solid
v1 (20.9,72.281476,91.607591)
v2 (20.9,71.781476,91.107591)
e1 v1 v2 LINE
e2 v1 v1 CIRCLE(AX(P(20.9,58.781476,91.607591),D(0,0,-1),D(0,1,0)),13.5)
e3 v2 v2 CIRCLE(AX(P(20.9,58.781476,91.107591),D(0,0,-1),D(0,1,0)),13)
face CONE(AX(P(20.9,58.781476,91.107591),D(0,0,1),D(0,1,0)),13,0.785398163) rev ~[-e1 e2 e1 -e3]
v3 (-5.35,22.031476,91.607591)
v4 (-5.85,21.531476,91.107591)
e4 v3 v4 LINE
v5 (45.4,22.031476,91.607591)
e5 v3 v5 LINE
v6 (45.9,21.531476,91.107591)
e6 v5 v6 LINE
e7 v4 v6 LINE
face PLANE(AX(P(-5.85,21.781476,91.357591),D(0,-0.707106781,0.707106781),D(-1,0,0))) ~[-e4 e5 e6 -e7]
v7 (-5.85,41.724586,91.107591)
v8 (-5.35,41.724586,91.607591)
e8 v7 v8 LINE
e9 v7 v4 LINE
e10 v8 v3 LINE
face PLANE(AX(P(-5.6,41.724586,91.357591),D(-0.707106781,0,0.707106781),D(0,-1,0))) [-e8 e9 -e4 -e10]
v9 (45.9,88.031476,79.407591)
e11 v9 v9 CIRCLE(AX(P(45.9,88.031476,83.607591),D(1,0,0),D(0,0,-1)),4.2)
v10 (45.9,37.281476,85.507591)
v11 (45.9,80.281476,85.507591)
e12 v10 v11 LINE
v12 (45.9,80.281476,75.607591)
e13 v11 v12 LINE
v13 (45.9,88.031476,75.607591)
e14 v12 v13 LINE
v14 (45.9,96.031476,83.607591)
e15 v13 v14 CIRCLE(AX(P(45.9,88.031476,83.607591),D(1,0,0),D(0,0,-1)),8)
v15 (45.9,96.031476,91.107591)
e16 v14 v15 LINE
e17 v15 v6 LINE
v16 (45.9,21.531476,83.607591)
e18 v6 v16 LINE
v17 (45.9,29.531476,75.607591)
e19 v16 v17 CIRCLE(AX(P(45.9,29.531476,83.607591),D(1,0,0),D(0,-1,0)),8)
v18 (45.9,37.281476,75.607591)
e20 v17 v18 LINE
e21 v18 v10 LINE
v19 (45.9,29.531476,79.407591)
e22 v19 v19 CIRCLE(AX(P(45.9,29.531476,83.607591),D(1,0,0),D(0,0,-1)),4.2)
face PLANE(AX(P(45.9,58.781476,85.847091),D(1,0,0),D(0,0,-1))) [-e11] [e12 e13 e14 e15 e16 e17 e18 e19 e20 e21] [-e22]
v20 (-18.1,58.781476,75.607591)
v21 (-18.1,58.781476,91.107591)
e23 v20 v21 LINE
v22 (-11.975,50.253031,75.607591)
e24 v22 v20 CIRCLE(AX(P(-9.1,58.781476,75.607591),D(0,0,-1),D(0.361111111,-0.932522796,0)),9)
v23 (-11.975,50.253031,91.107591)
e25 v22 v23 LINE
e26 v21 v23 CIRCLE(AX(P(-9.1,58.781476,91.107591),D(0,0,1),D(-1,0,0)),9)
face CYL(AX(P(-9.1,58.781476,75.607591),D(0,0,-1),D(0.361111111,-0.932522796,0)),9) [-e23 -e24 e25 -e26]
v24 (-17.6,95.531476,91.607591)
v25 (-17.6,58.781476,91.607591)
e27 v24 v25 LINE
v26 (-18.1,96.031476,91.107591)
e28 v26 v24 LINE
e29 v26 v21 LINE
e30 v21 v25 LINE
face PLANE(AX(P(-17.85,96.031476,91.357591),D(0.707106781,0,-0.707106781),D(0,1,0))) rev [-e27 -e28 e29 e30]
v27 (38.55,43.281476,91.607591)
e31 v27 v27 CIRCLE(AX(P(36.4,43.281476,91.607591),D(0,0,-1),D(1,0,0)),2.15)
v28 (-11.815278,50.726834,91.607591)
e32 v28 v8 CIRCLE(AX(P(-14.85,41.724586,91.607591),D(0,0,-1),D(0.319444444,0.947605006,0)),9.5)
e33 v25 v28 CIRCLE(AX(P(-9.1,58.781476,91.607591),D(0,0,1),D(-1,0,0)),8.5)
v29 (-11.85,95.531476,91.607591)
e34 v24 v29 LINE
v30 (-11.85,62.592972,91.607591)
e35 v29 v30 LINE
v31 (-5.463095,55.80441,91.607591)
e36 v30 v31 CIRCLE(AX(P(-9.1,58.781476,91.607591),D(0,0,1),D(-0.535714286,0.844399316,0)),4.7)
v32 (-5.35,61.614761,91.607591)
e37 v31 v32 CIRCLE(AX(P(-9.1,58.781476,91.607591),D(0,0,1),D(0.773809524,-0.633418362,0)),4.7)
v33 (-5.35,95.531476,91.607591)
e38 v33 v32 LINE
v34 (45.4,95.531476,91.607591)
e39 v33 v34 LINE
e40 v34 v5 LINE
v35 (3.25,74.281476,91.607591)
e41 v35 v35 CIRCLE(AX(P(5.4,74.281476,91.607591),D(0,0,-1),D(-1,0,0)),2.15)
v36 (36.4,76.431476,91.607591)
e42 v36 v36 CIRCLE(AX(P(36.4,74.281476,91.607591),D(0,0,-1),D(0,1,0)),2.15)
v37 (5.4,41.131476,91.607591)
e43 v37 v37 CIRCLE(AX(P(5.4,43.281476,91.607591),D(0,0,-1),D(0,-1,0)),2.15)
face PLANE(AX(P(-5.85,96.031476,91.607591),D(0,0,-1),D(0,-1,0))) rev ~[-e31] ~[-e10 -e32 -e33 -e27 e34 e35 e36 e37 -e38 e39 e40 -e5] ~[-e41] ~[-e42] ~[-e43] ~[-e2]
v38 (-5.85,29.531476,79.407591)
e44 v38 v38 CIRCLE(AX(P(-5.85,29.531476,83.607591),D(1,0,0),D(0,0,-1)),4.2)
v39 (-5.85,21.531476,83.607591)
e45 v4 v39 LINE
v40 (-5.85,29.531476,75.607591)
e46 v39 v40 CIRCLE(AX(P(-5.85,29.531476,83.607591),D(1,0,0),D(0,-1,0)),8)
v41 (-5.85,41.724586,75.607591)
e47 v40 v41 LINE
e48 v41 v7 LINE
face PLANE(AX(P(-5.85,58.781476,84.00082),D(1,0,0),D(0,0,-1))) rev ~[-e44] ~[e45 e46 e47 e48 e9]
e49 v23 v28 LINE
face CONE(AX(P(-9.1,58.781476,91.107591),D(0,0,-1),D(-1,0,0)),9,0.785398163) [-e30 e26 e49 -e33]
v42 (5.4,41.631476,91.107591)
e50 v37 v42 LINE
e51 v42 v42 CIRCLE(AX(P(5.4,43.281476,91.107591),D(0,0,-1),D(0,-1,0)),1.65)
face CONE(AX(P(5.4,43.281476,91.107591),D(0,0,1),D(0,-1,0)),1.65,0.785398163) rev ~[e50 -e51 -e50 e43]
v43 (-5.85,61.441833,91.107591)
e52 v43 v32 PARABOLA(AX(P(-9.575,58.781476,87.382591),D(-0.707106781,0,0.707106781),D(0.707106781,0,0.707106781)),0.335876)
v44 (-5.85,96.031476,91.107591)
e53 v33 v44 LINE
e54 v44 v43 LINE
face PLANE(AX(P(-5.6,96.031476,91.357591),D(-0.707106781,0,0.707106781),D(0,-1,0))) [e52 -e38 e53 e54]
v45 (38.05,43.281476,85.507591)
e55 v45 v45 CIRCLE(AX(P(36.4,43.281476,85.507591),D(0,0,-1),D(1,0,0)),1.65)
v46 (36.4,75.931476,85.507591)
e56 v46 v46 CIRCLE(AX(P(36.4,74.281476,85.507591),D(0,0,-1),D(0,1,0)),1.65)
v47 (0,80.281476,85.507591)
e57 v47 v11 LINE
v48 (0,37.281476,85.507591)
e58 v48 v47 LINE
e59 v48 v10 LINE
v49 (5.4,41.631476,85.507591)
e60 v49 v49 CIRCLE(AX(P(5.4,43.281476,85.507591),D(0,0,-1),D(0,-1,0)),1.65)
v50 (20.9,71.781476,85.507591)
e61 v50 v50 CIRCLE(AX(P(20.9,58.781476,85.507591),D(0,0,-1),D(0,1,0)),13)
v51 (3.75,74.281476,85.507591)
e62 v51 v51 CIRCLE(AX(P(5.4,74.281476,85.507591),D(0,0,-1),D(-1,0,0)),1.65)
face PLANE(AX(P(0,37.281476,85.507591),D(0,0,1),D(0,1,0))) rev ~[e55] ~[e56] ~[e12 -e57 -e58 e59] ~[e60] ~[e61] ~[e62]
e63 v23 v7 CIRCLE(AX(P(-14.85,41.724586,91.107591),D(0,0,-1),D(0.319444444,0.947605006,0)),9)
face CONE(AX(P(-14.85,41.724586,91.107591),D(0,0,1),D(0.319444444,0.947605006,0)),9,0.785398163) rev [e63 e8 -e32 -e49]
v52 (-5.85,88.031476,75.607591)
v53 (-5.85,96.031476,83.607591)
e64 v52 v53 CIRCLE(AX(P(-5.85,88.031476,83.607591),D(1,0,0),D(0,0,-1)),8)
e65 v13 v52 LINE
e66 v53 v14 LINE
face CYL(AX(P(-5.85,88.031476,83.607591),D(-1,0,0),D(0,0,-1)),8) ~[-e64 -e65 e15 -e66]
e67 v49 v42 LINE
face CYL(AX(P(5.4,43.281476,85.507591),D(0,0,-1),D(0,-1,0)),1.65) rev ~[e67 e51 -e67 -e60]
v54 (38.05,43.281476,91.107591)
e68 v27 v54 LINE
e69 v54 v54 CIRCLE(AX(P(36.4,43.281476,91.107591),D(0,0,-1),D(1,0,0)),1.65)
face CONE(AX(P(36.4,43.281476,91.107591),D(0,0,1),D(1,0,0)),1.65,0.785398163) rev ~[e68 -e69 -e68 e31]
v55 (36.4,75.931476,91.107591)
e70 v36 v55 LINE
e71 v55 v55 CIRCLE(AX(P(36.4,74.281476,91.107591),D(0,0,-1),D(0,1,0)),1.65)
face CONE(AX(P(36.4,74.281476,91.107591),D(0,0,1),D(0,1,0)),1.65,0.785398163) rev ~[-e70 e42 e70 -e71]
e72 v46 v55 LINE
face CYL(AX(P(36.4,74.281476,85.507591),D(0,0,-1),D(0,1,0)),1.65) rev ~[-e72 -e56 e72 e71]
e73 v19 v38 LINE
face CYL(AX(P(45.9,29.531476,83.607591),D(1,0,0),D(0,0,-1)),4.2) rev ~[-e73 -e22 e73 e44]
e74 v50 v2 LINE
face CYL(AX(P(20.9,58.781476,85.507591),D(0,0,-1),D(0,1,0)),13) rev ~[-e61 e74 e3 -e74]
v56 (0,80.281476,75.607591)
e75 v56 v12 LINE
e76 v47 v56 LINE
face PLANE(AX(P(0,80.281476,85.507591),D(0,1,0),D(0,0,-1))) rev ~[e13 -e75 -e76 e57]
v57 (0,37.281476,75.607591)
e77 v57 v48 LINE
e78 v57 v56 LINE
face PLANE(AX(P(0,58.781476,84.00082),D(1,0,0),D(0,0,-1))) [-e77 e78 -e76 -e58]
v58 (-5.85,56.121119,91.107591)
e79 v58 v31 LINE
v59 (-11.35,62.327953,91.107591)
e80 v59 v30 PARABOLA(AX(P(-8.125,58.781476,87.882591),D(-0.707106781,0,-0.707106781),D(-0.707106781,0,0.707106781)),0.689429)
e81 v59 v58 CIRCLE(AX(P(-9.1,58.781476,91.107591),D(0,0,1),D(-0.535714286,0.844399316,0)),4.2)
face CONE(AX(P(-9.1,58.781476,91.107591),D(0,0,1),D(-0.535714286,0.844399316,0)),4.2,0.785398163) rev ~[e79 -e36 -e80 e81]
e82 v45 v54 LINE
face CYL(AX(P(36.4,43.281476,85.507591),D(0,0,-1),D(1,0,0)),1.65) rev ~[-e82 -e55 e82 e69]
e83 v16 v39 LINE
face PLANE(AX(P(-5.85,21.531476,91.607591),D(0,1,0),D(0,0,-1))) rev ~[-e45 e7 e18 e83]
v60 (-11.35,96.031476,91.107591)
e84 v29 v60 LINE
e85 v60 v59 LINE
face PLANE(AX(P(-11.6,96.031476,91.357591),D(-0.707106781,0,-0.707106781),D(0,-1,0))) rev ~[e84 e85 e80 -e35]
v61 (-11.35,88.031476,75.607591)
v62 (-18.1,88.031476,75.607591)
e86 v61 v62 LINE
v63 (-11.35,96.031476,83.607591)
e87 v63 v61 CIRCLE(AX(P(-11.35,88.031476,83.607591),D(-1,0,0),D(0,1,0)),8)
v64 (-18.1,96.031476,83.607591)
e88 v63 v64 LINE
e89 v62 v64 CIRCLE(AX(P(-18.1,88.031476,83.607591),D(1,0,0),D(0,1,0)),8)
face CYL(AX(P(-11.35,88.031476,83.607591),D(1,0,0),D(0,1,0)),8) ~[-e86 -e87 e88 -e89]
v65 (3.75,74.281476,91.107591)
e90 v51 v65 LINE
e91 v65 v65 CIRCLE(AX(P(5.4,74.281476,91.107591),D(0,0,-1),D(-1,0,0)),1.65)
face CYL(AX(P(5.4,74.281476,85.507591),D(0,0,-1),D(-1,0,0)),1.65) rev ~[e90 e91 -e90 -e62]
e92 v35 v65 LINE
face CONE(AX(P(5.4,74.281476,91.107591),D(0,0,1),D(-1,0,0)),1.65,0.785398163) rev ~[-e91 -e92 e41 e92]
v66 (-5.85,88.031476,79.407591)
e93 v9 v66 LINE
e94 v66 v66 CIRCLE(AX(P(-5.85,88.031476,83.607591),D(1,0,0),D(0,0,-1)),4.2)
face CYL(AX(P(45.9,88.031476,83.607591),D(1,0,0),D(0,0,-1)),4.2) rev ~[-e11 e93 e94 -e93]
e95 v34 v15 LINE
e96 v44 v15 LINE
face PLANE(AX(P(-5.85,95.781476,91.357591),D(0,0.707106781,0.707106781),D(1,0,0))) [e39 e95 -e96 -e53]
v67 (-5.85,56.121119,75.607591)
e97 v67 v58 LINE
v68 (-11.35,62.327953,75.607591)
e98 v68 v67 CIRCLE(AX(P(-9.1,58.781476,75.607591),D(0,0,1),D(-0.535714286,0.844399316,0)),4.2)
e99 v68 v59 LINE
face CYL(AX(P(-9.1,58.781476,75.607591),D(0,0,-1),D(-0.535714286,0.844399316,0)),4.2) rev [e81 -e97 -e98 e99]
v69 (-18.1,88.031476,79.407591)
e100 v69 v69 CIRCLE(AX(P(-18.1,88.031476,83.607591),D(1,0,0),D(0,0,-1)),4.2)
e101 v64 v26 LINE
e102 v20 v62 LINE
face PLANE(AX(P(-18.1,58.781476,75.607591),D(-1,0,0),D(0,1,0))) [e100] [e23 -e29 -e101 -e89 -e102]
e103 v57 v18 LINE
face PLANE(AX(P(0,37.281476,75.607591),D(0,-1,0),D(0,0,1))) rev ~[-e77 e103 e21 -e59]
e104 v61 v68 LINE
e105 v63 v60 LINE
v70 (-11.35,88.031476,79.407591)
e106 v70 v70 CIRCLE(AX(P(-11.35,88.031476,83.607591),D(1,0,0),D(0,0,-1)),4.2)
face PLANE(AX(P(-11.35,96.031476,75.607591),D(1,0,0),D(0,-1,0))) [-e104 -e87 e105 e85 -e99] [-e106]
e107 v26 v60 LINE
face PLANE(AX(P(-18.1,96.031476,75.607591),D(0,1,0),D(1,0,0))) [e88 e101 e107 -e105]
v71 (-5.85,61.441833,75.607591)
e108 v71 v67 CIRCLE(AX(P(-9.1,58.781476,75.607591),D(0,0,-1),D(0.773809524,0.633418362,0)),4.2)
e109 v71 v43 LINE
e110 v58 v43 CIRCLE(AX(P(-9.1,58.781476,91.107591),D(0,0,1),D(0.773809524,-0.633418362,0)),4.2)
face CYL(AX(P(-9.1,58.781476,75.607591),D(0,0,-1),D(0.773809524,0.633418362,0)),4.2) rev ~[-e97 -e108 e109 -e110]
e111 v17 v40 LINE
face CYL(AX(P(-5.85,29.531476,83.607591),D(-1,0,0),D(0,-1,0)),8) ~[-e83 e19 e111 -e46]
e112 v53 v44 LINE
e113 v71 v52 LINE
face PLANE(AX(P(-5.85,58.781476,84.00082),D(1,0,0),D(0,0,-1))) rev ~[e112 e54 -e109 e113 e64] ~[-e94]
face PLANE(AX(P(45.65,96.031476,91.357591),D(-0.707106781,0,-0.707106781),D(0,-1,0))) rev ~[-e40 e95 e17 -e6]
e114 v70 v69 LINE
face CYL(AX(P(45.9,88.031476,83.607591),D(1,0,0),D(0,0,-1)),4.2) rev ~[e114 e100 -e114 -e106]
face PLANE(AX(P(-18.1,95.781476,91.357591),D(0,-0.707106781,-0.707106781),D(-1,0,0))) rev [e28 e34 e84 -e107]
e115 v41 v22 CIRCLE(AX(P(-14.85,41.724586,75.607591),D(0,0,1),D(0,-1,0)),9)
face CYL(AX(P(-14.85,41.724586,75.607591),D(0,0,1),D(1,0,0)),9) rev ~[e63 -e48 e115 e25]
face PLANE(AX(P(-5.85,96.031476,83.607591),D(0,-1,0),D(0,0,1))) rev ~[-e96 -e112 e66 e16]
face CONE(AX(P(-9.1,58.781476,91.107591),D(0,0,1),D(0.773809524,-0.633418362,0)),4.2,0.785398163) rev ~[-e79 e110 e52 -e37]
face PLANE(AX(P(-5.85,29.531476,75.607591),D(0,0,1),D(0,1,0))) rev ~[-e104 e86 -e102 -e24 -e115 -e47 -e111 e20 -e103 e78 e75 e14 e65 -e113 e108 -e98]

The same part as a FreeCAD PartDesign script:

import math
import FreeCAD as App
import Part
import Sketcher

V = App.Vector
Q = App.Units.Quantity


def edges_at(feature, points):
    """Names of the edges that pass closest to the given points."""
    edges = feature.Shape.Edges
    near = lambda p: min(range(len(edges)), key=lambda i: edges[i].distToShape(Part.Vertex(*p))[0])
    return sorted({f"Edge{near(p) + 1}" for p in points})

doc = App.newDocument("Part")
body = doc.addObject("PartDesign::Body", "Body")

sketch1 = body.newObject("Sketcher::SketchObject", "Sketch")
sketch1.AttachmentSupport = (doc.getObject("YZ_Plane"), [""])
sketch1.MapMode = "FlatFace"
sketch1.addGeometry([
    Part.LineSegment(V(30, 76, 0), V(37, 76, 0)),
    Part.LineSegment(V(37, 76, 0), V(37, 86, 0)),
    Part.LineSegment(V(37, 86, 0), V(80, 86, 0)),
    Part.LineSegment(V(80, 86, 0), V(80, 76, 0)),
    Part.LineSegment(V(80, 76, 0), V(88, 76, 0)),
    Part.ArcOfCircle(Part.Circle(V(88, 84, 0), V(0, 0, 1), 8), math.radians(-90), math.radians(0)),
    Part.LineSegment(V(96, 84, 0), V(96, 92, 0)),
    Part.LineSegment(V(96, 92, 0), V(22, 92, 0)),
    Part.LineSegment(V(22, 92, 0), V(22, 84, 0)),
    Part.ArcOfCircle(Part.Circle(V(30, 84, 0), V(0, 0, 1), 8), math.radians(180), math.radians(270)),
], False)
sketch1.addConstraint([
    Sketcher.Constraint("Coincident", 0, 2, 1, 1),
    Sketcher.Constraint("Coincident", 1, 2, 2, 1),
    Sketcher.Constraint("Coincident", 2, 2, 3, 1),
    Sketcher.Constraint("Coincident", 3, 2, 4, 1),
    Sketcher.Constraint("Tangent", 4, 2, 5, 1),
    Sketcher.Constraint("Tangent", 5, 2, 6, 1),
    Sketcher.Constraint("Coincident", 6, 2, 7, 1),
    Sketcher.Constraint("Coincident", 7, 2, 8, 1),
    Sketcher.Constraint("Tangent", 8, 2, 9, 1),
    Sketcher.Constraint("Tangent", 9, 2, 0, 1),
    Sketcher.Constraint("Horizontal", 0),
    Sketcher.Constraint("Vertical", 1),
    Sketcher.Constraint("Horizontal", 2),
    Sketcher.Constraint("Vertical", 3),
    Sketcher.Constraint("Horizontal", 4),
    Sketcher.Constraint("Vertical", 6),
    Sketcher.Constraint("Horizontal", 7),
    Sketcher.Constraint("Vertical", 8),
    Sketcher.Constraint("Equal", 5, 9),
    Sketcher.Constraint("Horizontal", 5, 3, 9, 3),
    Sketcher.Constraint("Equal", 0, 4),
    Sketcher.Constraint("Radius", 5, Q("8 mm")),
    Sketcher.Constraint("DistanceX", 2, 1, 2, 2, Q("43 mm")),
    Sketcher.Constraint("DistanceY", 6, 1, 6, 2, Q("8 mm")),
    Sketcher.Constraint("DistanceX", 7, 2, 7, 1, Q("74.5 mm")),
    Sketcher.Constraint("DistanceY", 1, 1, 1, 2, Q("9.9 mm")),
    Sketcher.Constraint("DistanceY", -1, 1, 5, 3, Q("83.607591 mm")),
    Sketcher.Constraint("DistanceX", -1, 1, 5, 3, Q("88.031476 mm")),
])
pad1 = body.newObject("PartDesign::Pad", "Pad")
pad1.Profile = sketch1
pad1.Length = 45.9

sketch2 = body.newObject("Sketcher::SketchObject", "Sketch001")
sketch2.AttachmentSupport = (doc.getObject("YZ_Plane"), [""])
sketch2.MapMode = "FlatFace"
sketch2.AttachmentOffset = App.Placement(V(0, 0, -5.85), App.Rotation())
sketch2.addGeometry([
    Part.ArcOfCircle(Part.Circle(V(88, 84, 0), V(0, 0, 1), 8), math.radians(-90), math.radians(0)),
    Part.LineSegment(V(88, 76, 0), V(30, 76, 0)),
    Part.ArcOfCircle(Part.Circle(V(30, 84, 0), V(0, 0, 1), 8), math.radians(180), math.radians(270)),
    Part.LineSegment(V(22, 84, 0), V(22, 92, 0)),
    Part.LineSegment(V(22, 92, 0), V(96, 92, 0)),
    Part.LineSegment(V(96, 92, 0), V(96, 84, 0)),
], False)
sketch2.addConstraint([
    Sketcher.Constraint("Tangent", 0, 1, 1, 1),
    Sketcher.Constraint("Tangent", 1, 2, 2, 2),
    Sketcher.Constraint("Tangent", 2, 1, 3, 1),
    Sketcher.Constraint("Coincident", 3, 2, 4, 1),
    Sketcher.Constraint("Coincident", 4, 2, 5, 1),
    Sketcher.Constraint("Tangent", 5, 2, 0, 2),
    Sketcher.Constraint("Horizontal", 1),
    Sketcher.Constraint("Vertical", 3),
    Sketcher.Constraint("Horizontal", 4),
    Sketcher.Constraint("Vertical", 5),
    Sketcher.Constraint("Equal", 0, 2),
    Sketcher.Constraint("Radius", 0, Q("8 mm")),
    Sketcher.Constraint("DistanceY", 3, 1, 3, 2, Q("8 mm")),
    Sketcher.Constraint("DistanceX", 1, 2, 1, 1, Q("58.5 mm")),
    Sketcher.Constraint("DistanceY", -1, 1, 0, 3, Q("83.607591 mm")),
    Sketcher.Constraint("DistanceX", -1, 1, 0, 3, Q("88.031476 mm")),
])
pad2 = body.newObject("PartDesign::Pad", "Pad001")
pad2.Profile = sketch2
pad2.Length = 5.85

sketch3 = body.newObject("Sketcher::SketchObject", "Sketch002")
sketch3.AttachmentSupport = (doc.getObject("XY_Plane"), [""])
sketch3.MapMode = "FlatFace"
sketch3.AttachmentOffset = App.Placement(V(0, 0, 85.507591), App.Rotation())
sketch3.addGeometry(Part.Circle(V(21, 59, 0), V(0, 0, 1), 13), False)
sketch3.addConstraint([
    Sketcher.Constraint("Diameter", 0, Q("26 mm")),
    Sketcher.Constraint("DistanceX", -1, 1, 0, 3, Q("20.9 mm")),
    Sketcher.Constraint("DistanceY", -1, 1, 0, 3, Q("58.781476 mm")),
])
pocket1 = body.newObject("PartDesign::Pocket", "Pocket")
pocket1.Profile = sketch3
pocket1.Type = "ThroughAll"
pocket1.Reversed = True

sketch4 = body.newObject("Sketcher::SketchObject", "Sketch003")
sketch4.AttachmentSupport = (doc.getObject("XY_Plane"), [""])
sketch4.MapMode = "FlatFace"
sketch4.AttachmentOffset = App.Placement(V(0, 0, 75.607591), App.Rotation())
sketch4.addGeometry([
    Part.ArcOfCircle(Part.Circle(V(-9.1, 58.8, 0), V(0, 0, 1), 9), math.radians(180), math.radians(291)),
    Part.LineSegment(V(-18.1, 58.8, 0), V(-18.1, 96, 0)),
    Part.LineSegment(V(-18.1, 96, 0), V(-11.3, 96, 0)),
    Part.LineSegment(V(-11.3, 96, 0), V(-11.3, 62.3, 0)),
    Part.ArcOfCircle(Part.Circle(V(-9.1, 58.8, 0), V(0, 0, 1), 4.2), math.radians(122), math.radians(321)),
    Part.LineSegment(V(-5.8, 56.1, 0), V(-5.8, 50.4, 0)),
], False)
sketch4.addConstraint([
    Sketcher.Constraint("Tangent", 0, 1, 1, 1),
    Sketcher.Constraint("Coincident", 1, 2, 2, 1),
    Sketcher.Constraint("Coincident", 2, 2, 3, 1),
    Sketcher.Constraint("Coincident", 3, 2, 4, 1),
    Sketcher.Constraint("Coincident", 4, 2, 5, 1),
    Sketcher.Constraint("Coincident", 5, 2, 0, 2),
    Sketcher.Constraint("Vertical", 1),
    Sketcher.Constraint("Horizontal", 2),
    Sketcher.Constraint("Vertical", 3),
    Sketcher.Constraint("Vertical", 5),
    Sketcher.Constraint("Coincident", 4, 3, 0, 3),
    Sketcher.Constraint("Radius", 0, Q("9 mm")),
    Sketcher.Constraint("Radius", 4, Q("4.2 mm")),
    Sketcher.Constraint("DistanceX", 2, 1, 2, 2, Q("6.75 mm")),
    Sketcher.Constraint("DistanceY", 1, 1, 1, 2, Q("37.25 mm")),
    Sketcher.Constraint("DistanceX", 0, 3, -1, 1, Q("9.1 mm")),
    Sketcher.Constraint("DistanceX", 3, 2, 4, 2, Q("5.5 mm")),
    Sketcher.Constraint("DistanceY", -1, 1, 4, 2, Q("56.121119 mm")),
])
pad3 = body.newObject("PartDesign::Pad", "Pad002")
pad3.Profile = sketch4
pad3.Length = 16

sketch5 = body.newObject("Sketcher::SketchObject", "Sketch004")
sketch5.AttachmentSupport = (doc.getObject("XY_Plane"), [""])
sketch5.MapMode = "FlatFace"
sketch5.AttachmentOffset = App.Placement(V(0, 0, 75.607591), App.Rotation())
sketch5.addGeometry([
    Part.ArcOfCircle(Part.Circle(V(-9.1, 58.8, 0), V(0, 0, 1), 4.2), math.radians(-39), math.radians(39)),
    Part.LineSegment(V(-5.8, 56.1, 0), V(-5.8, 61.4, 0)),
], False)
sketch5.addConstraint([
    Sketcher.Constraint("Coincident", 0, 1, 1, 1),
    Sketcher.Constraint("Coincident", 1, 2, 0, 2),
    Sketcher.Constraint("Vertical", 1),
    Sketcher.Constraint("Radius", 0, Q("4.2 mm")),
    Sketcher.Constraint("DistanceX", 0, 3, -1, 1, Q("9.1 mm")),
    Sketcher.Constraint("DistanceX", 0, 1, -1, 1, Q("5.85 mm")),
    Sketcher.Constraint("DistanceY", -1, 1, 0, 1, Q("56.121119 mm")),
])
pocket2 = body.newObject("PartDesign::Pocket", "Pocket001")
pocket2.Profile = sketch5
pocket2.Type = "ThroughAll"
pocket2.Reversed = True
doc.recompute()

fillet = body.newObject("PartDesign::Fillet", "Fillet")
fillet.Base = (pocket2, edges_at(pocket2, [(-5.85, 50.389, 83.608)]))
fillet.Radius = 9

sketch6 = body.newObject("Sketcher::SketchObject", "Sketch005")
sketch6.AttachmentSupport = (doc.getObject("YZ_Plane"), [""])
sketch6.MapMode = "FlatFace"
sketch6.AttachmentOffset = App.Placement(V(0, 0, 45.9), App.Rotation())
sketch6.addGeometry([
    Part.Circle(V(88, 83.6, 0), V(0, 0, 1), 4.2),
    Part.Circle(V(29.5, 83.6, 0), V(0, 0, 1), 4.2),
], False)
sketch6.addConstraint([
    Sketcher.Constraint("Equal", 0, 1),
    Sketcher.Constraint("Horizontal", 0, 3, 1, 3),
    Sketcher.Constraint("Diameter", 0, Q("8.4 mm")),
    Sketcher.Constraint("DistanceX", 1, 3, 0, 3, Q("58.5 mm")),
    Sketcher.Constraint("DistanceY", -1, 1, 0, 3, Q("83.607591 mm")),
    Sketcher.Constraint("DistanceX", -1, 1, 0, 3, Q("88.031476 mm")),
])
pocket3 = body.newObject("PartDesign::Pocket", "Pocket002")
pocket3.Profile = sketch6
pocket3.Type = "ThroughAll"

sketch7 = body.newObject("Sketcher::SketchObject", "Sketch006")
sketch7.AttachmentSupport = (doc.getObject("XY_Plane"), [""])
sketch7.MapMode = "FlatFace"
sketch7.AttachmentOffset = App.Placement(V(0, 0, 85.507591), App.Rotation())
sketch7.addGeometry(Part.Circle(V(36.4, 74.3, 0), V(0, 0, 1), 1.6), False)
sketch7.addConstraint([
    Sketcher.Constraint("Diameter", 0, Q("3.3 mm")),
    Sketcher.Constraint("DistanceX", -1, 1, 0, 3, Q("36.4 mm")),
    Sketcher.Constraint("DistanceY", -1, 1, 0, 3, Q("74.281476 mm")),
])
pocket4 = body.newObject("PartDesign::Pocket", "Pocket003")
pocket4.Profile = sketch7
pocket4.Type = "ThroughAll"
pocket4.Reversed = True
doc.recompute()

datumline = body.newObject("PartDesign::Line", "DatumLine")
datumline.Placement = App.Placement(V(20.9, 58.781476, 0), App.Rotation(V(0, 0, 1), V(0, 0, 1)))
polarpattern = body.newObject("PartDesign::PolarPattern", "PolarPattern")
polarpattern.Originals = [pocket4]
polarpattern.Axis = (datumline, [""])
polarpattern.Angle = 360
polarpattern.Occurrences = 4
body.Tip = polarpattern

sketch8 = body.newObject("Sketcher::SketchObject", "Sketch007")
sketch8.AttachmentSupport = (doc.getObject("YZ_Plane"), [""])
sketch8.MapMode = "FlatFace"
sketch8.AttachmentOffset = App.Placement(V(0, 0, -11.35), App.Rotation())
sketch8.addGeometry([
    Part.ArcOfCircle(Part.Circle(V(88, 84, 0), V(0, 0, 1), 8), math.radians(-90), math.radians(0)),
    Part.LineSegment(V(88, 76, 0), V(96, 76, 0)),
    Part.LineSegment(V(96, 76, 0), V(96, 84, 0)),
], False)
sketch8.addConstraint([
    Sketcher.Constraint("Tangent", 0, 1, 1, 1),
    Sketcher.Constraint("Coincident", 1, 2, 2, 1),
    Sketcher.Constraint("Tangent", 2, 2, 0, 2),
    Sketcher.Constraint("Horizontal", 1),
    Sketcher.Constraint("Vertical", 2),
    Sketcher.Constraint("Radius", 0, Q("8 mm")),
    Sketcher.Constraint("DistanceY", -1, 1, 0, 3, Q("83.607591 mm")),
    Sketcher.Constraint("DistanceX", -1, 1, 0, 3, Q("88.031476 mm")),
])
pocket5 = body.newObject("PartDesign::Pocket", "Pocket004")
pocket5.Profile = sketch8
pocket5.Type = "ThroughAll"
doc.recompute()

chamfer = body.newObject("PartDesign::Chamfer", "Chamfer")
chamfer.Base = (pocket5, edges_at(pocket5, [
    (36.4, 72.631, 91.608),
    (34.75, 43.281, 91.608),
    (5.4, 44.931, 91.608),
    (7.05, 74.281, 91.608),
    (20.025, 21.531, 91.608),
    (20.025, 96.031, 91.608),
    (45.9, 58.781, 91.608),
    (-5.85, 31.628, 91.608),
    (20.9, 45.781, 91.608),
    (-12.243, 55.996, 91.608),
    (-14.725, 96.031, 91.608),
    (-11.35, 79.18, 91.608),
    (-18.1, 77.406, 91.608),
    (-16.41, 53.531, 91.608),
    (-5.85, 78.737, 91.608),
    (-7.54, 46.975, 91.608),
]))
chamfer.Size = 0.5

doc.recompute()
